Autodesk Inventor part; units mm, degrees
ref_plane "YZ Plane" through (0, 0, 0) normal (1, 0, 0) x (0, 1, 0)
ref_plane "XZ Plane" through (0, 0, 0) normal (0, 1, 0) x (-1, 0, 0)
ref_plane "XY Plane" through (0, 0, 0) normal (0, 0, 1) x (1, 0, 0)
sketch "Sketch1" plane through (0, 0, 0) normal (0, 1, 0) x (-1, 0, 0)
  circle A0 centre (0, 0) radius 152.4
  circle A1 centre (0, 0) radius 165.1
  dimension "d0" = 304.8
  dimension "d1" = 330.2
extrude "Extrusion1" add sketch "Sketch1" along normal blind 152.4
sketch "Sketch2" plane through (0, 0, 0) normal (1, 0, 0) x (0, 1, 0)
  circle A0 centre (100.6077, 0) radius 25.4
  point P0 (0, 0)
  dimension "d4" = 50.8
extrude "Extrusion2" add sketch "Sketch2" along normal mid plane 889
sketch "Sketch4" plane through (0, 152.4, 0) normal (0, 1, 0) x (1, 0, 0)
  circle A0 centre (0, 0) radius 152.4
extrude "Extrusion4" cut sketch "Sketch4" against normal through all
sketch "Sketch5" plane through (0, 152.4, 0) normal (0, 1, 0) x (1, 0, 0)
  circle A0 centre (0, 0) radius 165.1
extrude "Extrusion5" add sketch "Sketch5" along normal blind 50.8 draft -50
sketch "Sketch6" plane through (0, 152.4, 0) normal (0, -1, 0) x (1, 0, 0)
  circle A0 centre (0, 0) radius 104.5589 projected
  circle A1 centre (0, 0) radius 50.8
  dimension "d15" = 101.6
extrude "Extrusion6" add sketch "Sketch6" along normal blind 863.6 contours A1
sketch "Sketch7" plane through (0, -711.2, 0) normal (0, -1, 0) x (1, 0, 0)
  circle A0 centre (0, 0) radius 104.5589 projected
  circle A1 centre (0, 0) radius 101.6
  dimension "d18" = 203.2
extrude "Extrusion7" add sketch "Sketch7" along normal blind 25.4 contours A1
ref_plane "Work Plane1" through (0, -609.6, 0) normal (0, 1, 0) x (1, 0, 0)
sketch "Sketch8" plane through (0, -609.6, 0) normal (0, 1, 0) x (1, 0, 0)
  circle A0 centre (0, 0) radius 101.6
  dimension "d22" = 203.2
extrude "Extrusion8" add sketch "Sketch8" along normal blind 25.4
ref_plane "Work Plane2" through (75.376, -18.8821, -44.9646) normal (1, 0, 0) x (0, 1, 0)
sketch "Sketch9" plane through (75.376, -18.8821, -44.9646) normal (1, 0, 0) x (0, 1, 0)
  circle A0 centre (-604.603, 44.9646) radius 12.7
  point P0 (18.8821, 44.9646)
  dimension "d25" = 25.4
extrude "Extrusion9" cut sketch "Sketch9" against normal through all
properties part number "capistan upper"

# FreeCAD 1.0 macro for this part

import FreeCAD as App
import Part
import Sketcher
from FreeCAD import Vector
Q = App.Units.Quantity

doc = App.newDocument("Part")
params = doc.addObject("Spreadsheet::Sheet", "Params")
for row, (alias, value) in enumerate([
    ("sketch1_diameter", "13 in"),
    ("sketch1_diameter2", "12 in"),
    ("pad1_length", "6 in"),
    ("sketch2_diameter", "2 in"),
    ("pad2_length", "35 in"),
    ("sketch3_diameter", "12 in"),
    ("sketch4_diameter", "13 in"),
    ("pad3_length", "2 in"),
    ("pad3_taper", "-50 deg"),
    ("sketch5_diameter", "4 in"),
    ("pad4_length", "34 in"),
    ("sketch6_diameter", "8 in"),
    ("pad5_length", "1 in"),
    ("sketch7_diameter", "8 in"),
    ("pad6_length", "1 in"),
    ("sketch8_diameter", "1 in"),
], start=1):
    params.set(f"A{row}", alias)
    params.set(f"B{row}", "=" + value)
    params.setAlias(f"B{row}", alias)

body = doc.addObject("PartDesign::Body", "Body")

sketch1 = doc.addObject("Sketcher::SketchObject", "Sketch")
body.addObject(sketch1)
sketch1.AttachmentSupport = (doc.XZ_Plane, [""])
sketch1.MapMode = "FlatFace"
sketch1.addGeometry(Part.Circle(Vector(0, 0, 0), Vector(0, 0, 1), 165.1), False)
sketch1.addGeometry(Part.Circle(Vector(0, 0, 0), Vector(0, 0, 1), 152.4), False)
sketch1.addConstraint(Sketcher.Constraint("Coincident", 0, 3, -1, 1))
sketch1.addConstraint(Sketcher.Constraint("Coincident", 1, 3, -1, 1))
sketch1.addConstraint(Sketcher.Constraint("Diameter", 0, Q("13 in")))
sketch1.addConstraint(Sketcher.Constraint("Diameter", 1, Q("12 in")))
sketch1.setExpression("Constraints[2]", "Params.sketch1_diameter")
sketch1.setExpression("Constraints[3]", "Params.sketch1_diameter2")
pad1 = doc.addObject("PartDesign::Pad", "Pad")
body.addObject(pad1)
pad1.Profile = sketch1
pad1.setExpression("Length", "Params.pad1_length")
pad1.Reversed = True

sketch2 = doc.addObject("Sketcher::SketchObject", "Sketch001")
body.addObject(sketch2)
sketch2.AttachmentSupport = (doc.YZ_Plane, [""])
sketch2.MapMode = "FlatFace"
sketch2.addGeometry(Part.Circle(Vector(100.6077, 0, 0), Vector(0, 0, 1), 25.4), False)
sketch2.addConstraint(Sketcher.Constraint("PointOnObject", 0, 3, -1))
sketch2.addConstraint(Sketcher.Constraint("Diameter", 0, Q("2 in")))
sketch2.addConstraint(Sketcher.Constraint("DistanceX", -1, 1, 0, 3, 100.6077))
sketch2.setExpression("Constraints[1]", "Params.sketch2_diameter")
pad2 = doc.addObject("PartDesign::Pad", "Pad001")
body.addObject(pad2)
pad2.Profile = sketch2
pad2.setExpression("Length", "Params.pad2_length")
pad2.Midplane = True

sketch3 = doc.addObject("Sketcher::SketchObject", "Sketch002")
body.addObject(sketch3)
sketch3.AttachmentSupport = (doc.XZ_Plane, [""])
sketch3.MapMode = "FlatFace"
sketch3.AttachmentOffset = App.Placement(Vector(0, 0, -6 * 25.4), App.Rotation())
sketch3.addGeometry(Part.Circle(Vector(0, 0, 0), Vector(0, 0, 1), 152.4), False)
sketch3.addConstraint(Sketcher.Constraint("Coincident", 0, 3, -1, 1))
sketch3.addConstraint(Sketcher.Constraint("Diameter", 0, Q("12 in")))
sketch3.setExpression("Constraints[1]", "Params.sketch3_diameter")
pocket1 = doc.addObject("PartDesign::Pocket", "Pocket")
body.addObject(pocket1)
pocket1.Profile = sketch3
pocket1.Type = "ThroughAll"
pocket1.Reversed = True

sketch4 = doc.addObject("Sketcher::SketchObject", "Sketch003")
body.addObject(sketch4)
sketch4.AttachmentSupport = (doc.XZ_Plane, [""])
sketch4.MapMode = "FlatFace"
sketch4.AttachmentOffset = App.Placement(Vector(0, 0, -6 * 25.4), App.Rotation())
sketch4.addGeometry(Part.Circle(Vector(0, 0, 0), Vector(0, 0, 1), 165.1), False)
sketch4.addConstraint(Sketcher.Constraint("Coincident", 0, 3, -1, 1))
sketch4.addConstraint(Sketcher.Constraint("Diameter", 0, Q("13 in")))
sketch4.setExpression("Constraints[1]", "Params.sketch4_diameter")
pad3 = doc.addObject("PartDesign::Pad", "Pad002")
body.addObject(pad3)
pad3.Profile = sketch4
pad3.setExpression("Length", "Params.pad3_length")
pad3.Reversed = True
pad3.setExpression("TaperAngle", "Params.pad3_taper")

sketch5 = doc.addObject("Sketcher::SketchObject", "Sketch004")
body.addObject(sketch5)
sketch5.AttachmentSupport = (doc.XZ_Plane, [""])
sketch5.MapMode = "FlatFace"
sketch5.AttachmentOffset = App.Placement(Vector(0, 0, -6 * 25.4), App.Rotation())
sketch5.addGeometry(Part.Circle(Vector(0, 0, 0), Vector(0, 0, 1), 50.8), False)
sketch5.addConstraint(Sketcher.Constraint("Coincident", 0, 3, -1, 1))
sketch5.addConstraint(Sketcher.Constraint("Diameter", 0, Q("4 in")))
sketch5.setExpression("Constraints[1]", "Params.sketch5_diameter")
pad4 = doc.addObject("PartDesign::Pad", "Pad003")
body.addObject(pad4)
pad4.Profile = sketch5
pad4.setExpression("Length", "Params.pad4_length")

sketch6 = doc.addObject("Sketcher::SketchObject", "Sketch005")
body.addObject(sketch6)
sketch6.AttachmentSupport = (doc.XZ_Plane, [""])
sketch6.MapMode = "FlatFace"
sketch6.AttachmentOffset = App.Placement(Vector(0, 0, 28 * 25.4), App.Rotation())
sketch6.addGeometry(Part.Circle(Vector(0, 0, 0), Vector(0, 0, 1), 101.6), False)
sketch6.addConstraint(Sketcher.Constraint("Coincident", 0, 3, -1, 1))
sketch6.addConstraint(Sketcher.Constraint("Diameter", 0, Q("8 in")))
sketch6.setExpression("Constraints[1]", "Params.sketch6_diameter")
pad5 = doc.addObject("PartDesign::Pad", "Pad004")
body.addObject(pad5)
pad5.Profile = sketch6
pad5.setExpression("Length", "Params.pad5_length")

sketch7 = doc.addObject("Sketcher::SketchObject", "Sketch006")
body.addObject(sketch7)
sketch7.AttachmentSupport = (doc.XZ_Plane, [""])
sketch7.MapMode = "FlatFace"
sketch7.AttachmentOffset = App.Placement(Vector(0, 0, 24 * 25.4), App.Rotation())
sketch7.addGeometry(Part.Circle(Vector(0, 0, 0), Vector(0, 0, 1), 101.6), False)
sketch7.addConstraint(Sketcher.Constraint("Coincident", 0, 3, -1, 1))
sketch7.addConstraint(Sketcher.Constraint("Diameter", 0, Q("8 in")))
sketch7.setExpression("Constraints[1]", "Params.sketch7_diameter")
pad6 = doc.addObject("PartDesign::Pad", "Pad005")
body.addObject(pad6)
pad6.Profile = sketch7
pad6.setExpression("Length", "Params.pad6_length")
pad6.Reversed = True

sketch8 = doc.addObject("Sketcher::SketchObject", "Sketch007")
body.addObject(sketch8)
sketch8.AttachmentSupport = (doc.YZ_Plane, [""])
sketch8.MapMode = "FlatFace"
sketch8.AttachmentOffset = App.Placement(Vector(0, 0, 75.376), App.Rotation())
sketch8.addGeometry(Part.Circle(Vector(-623.4851, 0, 0), Vector(0, 0, 1), 12.7), False)
sketch8.addConstraint(Sketcher.Constraint("PointOnObject", 0, 3, -1))
sketch8.addConstraint(Sketcher.Constraint("Diameter", 0, Q("1 in")))
sketch8.addConstraint(Sketcher.Constraint("DistanceX", 0, 3, -1, 1, 623.485))
sketch8.setExpression("Constraints[1]", "Params.sketch8_diameter")
pocket2 = doc.addObject("PartDesign::Pocket", "Pocket001")
body.addObject(pocket2)
pocket2.Profile = sketch8
pocket2.Type = "ThroughAll"

doc.recompute()
